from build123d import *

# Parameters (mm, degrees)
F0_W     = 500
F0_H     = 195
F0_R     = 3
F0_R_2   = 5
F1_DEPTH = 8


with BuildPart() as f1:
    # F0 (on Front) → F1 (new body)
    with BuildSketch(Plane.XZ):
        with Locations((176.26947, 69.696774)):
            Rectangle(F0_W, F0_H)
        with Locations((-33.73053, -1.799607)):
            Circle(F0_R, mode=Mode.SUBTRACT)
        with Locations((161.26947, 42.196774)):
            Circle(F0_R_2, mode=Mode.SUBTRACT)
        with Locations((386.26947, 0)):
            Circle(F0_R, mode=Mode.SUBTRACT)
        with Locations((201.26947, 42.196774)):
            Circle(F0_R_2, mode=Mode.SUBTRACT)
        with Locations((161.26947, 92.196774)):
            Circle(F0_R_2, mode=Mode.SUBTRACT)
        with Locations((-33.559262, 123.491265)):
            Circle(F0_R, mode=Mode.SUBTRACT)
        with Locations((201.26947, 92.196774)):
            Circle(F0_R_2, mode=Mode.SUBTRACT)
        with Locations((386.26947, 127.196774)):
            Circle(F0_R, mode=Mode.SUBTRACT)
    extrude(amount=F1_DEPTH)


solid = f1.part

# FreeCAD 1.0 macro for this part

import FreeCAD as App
import Part
import Sketcher
from FreeCAD import Vector

doc = App.newDocument("Part")
body = doc.addObject("PartDesign::Body", "Body")

sketch1 = body.newObject("Sketcher::SketchObject", "Sketch")
sketch1.AttachmentSupport = (doc.getObject("XZ_Plane"), [""])
sketch1.MapMode = "FlatFace"
sketch1.addGeometry(Part.LineSegment(Vector(-73.7, 167.2, 0), Vector(-73.7, -27.8, 0)), False)
sketch1.addGeometry(Part.LineSegment(Vector(-73.7, -27.8, 0), Vector(426.3, -27.8, 0)), False)
sketch1.addGeometry(Part.LineSegment(Vector(426.3, -27.8, 0), Vector(426.3, 167.2, 0)), False)
sketch1.addGeometry(Part.LineSegment(Vector(426.3, 167.2, 0), Vector(-73.7, 167.2, 0)), False)
sketch1.addGeometry(Part.Circle(Vector(-33.7, -1.8, 0), Vector(0, 0, 1), 3), False)
sketch1.addGeometry(Part.Circle(Vector(161.3, 42.2, 0), Vector(0, 0, 1), 5), False)
sketch1.addGeometry(Part.Circle(Vector(386.3, 0, 0), Vector(0, 0, 1), 3), False)
sketch1.addGeometry(Part.Circle(Vector(201.3, 42.2, 0), Vector(0, 0, 1), 5), False)
sketch1.addGeometry(Part.Circle(Vector(161.3, 92.2, 0), Vector(0, 0, 1), 5), False)
sketch1.addGeometry(Part.Circle(Vector(-33.6, 123.5, 0), Vector(0, 0, 1), 3), False)
sketch1.addGeometry(Part.Circle(Vector(201.3, 92.2, 0), Vector(0, 0, 1), 5), False)
sketch1.addGeometry(Part.Circle(Vector(386.3, 127.2, 0), Vector(0, 0, 1), 3), False)
sketch1.addConstraint(Sketcher.Constraint("Coincident", 0, 2, 1, 1))
sketch1.addConstraint(Sketcher.Constraint("Coincident", 1, 2, 2, 1))
sketch1.addConstraint(Sketcher.Constraint("Coincident", 2, 2, 3, 1))
sketch1.addConstraint(Sketcher.Constraint("Coincident", 3, 2, 0, 1))
sketch1.addConstraint(Sketcher.Constraint("Vertical", 0))
sketch1.addConstraint(Sketcher.Constraint("Horizontal", 1))
sketch1.addConstraint(Sketcher.Constraint("Vertical", 2))
sketch1.addConstraint(Sketcher.Constraint("Horizontal", 3))
sketch1.addConstraint(Sketcher.Constraint("Equal", 4, 6))
sketch1.addConstraint(Sketcher.Constraint("Equal", 5, 7))
sketch1.addConstraint(Sketcher.Constraint("Equal", 7, 8))
sketch1.addConstraint(Sketcher.Constraint("Equal", 6, 9))
sketch1.addConstraint(Sketcher.Constraint("Equal", 8, 10))
sketch1.addConstraint(Sketcher.Constraint("Equal", 9, 11))
sketch1.addConstraint(Sketcher.Constraint("PointOnObject", 6, 3, -1))
sketch1.addConstraint(Sketcher.Constraint("Horizontal", 5, 3, 7, 3))
sketch1.addConstraint(Sketcher.Constraint("Horizontal", 8, 3, 10, 3))
sketch1.addConstraint(Sketcher.Constraint("Vertical", 5, 3, 8, 3))
sketch1.addConstraint(Sketcher.Constraint("Vertical", 7, 3, 10, 3))
sketch1.addConstraint(Sketcher.Constraint("Vertical", 6, 3, 11, 3))
sketch1.addConstraint(Sketcher.Constraint("Diameter", 4, 6.0))
sketch1.addConstraint(Sketcher.Constraint("Diameter", 5, 10.0))
sketch1.addConstraint(Sketcher.Constraint("DistanceX", 1, 1, 1, 2, 500.0))
sketch1.addConstraint(Sketcher.Constraint("DistanceY", 0, 2, 0, 1, 195.0))
sketch1.addConstraint(Sketcher.Constraint("DistanceX", 4, 3, 5, 3, 195.0))
sketch1.addConstraint(Sketcher.Constraint("DistanceX", 5, 3, 6, 3, 225.0))
sketch1.addConstraint(Sketcher.Constraint("DistanceX", 5, 3, 7, 3, 40.0))
sketch1.addConstraint(Sketcher.Constraint("DistanceY", 5, 3, 8, 3, 50.0))
sketch1.addConstraint(Sketcher.Constraint("DistanceY", 10, 3, 11, 3, 35.0))
sketch1.addConstraint(Sketcher.Constraint("DistanceX", 0, 2, 4, 3, 40.0))
sketch1.addConstraint(Sketcher.Constraint("DistanceY", 0, 2, 5, 3, 70.0))
sketch1.addConstraint(Sketcher.Constraint("DistanceX", 4, 3, -1, 1, 33.73053))
sketch1.addConstraint(Sketcher.Constraint("DistanceX", 9, 3, -1, 1, 33.559262))
sketch1.addConstraint(Sketcher.Constraint("DistanceY", 4, 3, 5, 3, 43.996381))
sketch1.addConstraint(Sketcher.Constraint("DistanceY", 4, 3, 9, 3, 125.290872))
sketch1.addConstraint(Sketcher.Constraint("DistanceY", 4, 3, -1, 1, 1.799607))
pad1 = body.newObject("PartDesign::Pad", "Pad")
pad1.Profile = sketch1
pad1.Length = 8

doc.recompute()
